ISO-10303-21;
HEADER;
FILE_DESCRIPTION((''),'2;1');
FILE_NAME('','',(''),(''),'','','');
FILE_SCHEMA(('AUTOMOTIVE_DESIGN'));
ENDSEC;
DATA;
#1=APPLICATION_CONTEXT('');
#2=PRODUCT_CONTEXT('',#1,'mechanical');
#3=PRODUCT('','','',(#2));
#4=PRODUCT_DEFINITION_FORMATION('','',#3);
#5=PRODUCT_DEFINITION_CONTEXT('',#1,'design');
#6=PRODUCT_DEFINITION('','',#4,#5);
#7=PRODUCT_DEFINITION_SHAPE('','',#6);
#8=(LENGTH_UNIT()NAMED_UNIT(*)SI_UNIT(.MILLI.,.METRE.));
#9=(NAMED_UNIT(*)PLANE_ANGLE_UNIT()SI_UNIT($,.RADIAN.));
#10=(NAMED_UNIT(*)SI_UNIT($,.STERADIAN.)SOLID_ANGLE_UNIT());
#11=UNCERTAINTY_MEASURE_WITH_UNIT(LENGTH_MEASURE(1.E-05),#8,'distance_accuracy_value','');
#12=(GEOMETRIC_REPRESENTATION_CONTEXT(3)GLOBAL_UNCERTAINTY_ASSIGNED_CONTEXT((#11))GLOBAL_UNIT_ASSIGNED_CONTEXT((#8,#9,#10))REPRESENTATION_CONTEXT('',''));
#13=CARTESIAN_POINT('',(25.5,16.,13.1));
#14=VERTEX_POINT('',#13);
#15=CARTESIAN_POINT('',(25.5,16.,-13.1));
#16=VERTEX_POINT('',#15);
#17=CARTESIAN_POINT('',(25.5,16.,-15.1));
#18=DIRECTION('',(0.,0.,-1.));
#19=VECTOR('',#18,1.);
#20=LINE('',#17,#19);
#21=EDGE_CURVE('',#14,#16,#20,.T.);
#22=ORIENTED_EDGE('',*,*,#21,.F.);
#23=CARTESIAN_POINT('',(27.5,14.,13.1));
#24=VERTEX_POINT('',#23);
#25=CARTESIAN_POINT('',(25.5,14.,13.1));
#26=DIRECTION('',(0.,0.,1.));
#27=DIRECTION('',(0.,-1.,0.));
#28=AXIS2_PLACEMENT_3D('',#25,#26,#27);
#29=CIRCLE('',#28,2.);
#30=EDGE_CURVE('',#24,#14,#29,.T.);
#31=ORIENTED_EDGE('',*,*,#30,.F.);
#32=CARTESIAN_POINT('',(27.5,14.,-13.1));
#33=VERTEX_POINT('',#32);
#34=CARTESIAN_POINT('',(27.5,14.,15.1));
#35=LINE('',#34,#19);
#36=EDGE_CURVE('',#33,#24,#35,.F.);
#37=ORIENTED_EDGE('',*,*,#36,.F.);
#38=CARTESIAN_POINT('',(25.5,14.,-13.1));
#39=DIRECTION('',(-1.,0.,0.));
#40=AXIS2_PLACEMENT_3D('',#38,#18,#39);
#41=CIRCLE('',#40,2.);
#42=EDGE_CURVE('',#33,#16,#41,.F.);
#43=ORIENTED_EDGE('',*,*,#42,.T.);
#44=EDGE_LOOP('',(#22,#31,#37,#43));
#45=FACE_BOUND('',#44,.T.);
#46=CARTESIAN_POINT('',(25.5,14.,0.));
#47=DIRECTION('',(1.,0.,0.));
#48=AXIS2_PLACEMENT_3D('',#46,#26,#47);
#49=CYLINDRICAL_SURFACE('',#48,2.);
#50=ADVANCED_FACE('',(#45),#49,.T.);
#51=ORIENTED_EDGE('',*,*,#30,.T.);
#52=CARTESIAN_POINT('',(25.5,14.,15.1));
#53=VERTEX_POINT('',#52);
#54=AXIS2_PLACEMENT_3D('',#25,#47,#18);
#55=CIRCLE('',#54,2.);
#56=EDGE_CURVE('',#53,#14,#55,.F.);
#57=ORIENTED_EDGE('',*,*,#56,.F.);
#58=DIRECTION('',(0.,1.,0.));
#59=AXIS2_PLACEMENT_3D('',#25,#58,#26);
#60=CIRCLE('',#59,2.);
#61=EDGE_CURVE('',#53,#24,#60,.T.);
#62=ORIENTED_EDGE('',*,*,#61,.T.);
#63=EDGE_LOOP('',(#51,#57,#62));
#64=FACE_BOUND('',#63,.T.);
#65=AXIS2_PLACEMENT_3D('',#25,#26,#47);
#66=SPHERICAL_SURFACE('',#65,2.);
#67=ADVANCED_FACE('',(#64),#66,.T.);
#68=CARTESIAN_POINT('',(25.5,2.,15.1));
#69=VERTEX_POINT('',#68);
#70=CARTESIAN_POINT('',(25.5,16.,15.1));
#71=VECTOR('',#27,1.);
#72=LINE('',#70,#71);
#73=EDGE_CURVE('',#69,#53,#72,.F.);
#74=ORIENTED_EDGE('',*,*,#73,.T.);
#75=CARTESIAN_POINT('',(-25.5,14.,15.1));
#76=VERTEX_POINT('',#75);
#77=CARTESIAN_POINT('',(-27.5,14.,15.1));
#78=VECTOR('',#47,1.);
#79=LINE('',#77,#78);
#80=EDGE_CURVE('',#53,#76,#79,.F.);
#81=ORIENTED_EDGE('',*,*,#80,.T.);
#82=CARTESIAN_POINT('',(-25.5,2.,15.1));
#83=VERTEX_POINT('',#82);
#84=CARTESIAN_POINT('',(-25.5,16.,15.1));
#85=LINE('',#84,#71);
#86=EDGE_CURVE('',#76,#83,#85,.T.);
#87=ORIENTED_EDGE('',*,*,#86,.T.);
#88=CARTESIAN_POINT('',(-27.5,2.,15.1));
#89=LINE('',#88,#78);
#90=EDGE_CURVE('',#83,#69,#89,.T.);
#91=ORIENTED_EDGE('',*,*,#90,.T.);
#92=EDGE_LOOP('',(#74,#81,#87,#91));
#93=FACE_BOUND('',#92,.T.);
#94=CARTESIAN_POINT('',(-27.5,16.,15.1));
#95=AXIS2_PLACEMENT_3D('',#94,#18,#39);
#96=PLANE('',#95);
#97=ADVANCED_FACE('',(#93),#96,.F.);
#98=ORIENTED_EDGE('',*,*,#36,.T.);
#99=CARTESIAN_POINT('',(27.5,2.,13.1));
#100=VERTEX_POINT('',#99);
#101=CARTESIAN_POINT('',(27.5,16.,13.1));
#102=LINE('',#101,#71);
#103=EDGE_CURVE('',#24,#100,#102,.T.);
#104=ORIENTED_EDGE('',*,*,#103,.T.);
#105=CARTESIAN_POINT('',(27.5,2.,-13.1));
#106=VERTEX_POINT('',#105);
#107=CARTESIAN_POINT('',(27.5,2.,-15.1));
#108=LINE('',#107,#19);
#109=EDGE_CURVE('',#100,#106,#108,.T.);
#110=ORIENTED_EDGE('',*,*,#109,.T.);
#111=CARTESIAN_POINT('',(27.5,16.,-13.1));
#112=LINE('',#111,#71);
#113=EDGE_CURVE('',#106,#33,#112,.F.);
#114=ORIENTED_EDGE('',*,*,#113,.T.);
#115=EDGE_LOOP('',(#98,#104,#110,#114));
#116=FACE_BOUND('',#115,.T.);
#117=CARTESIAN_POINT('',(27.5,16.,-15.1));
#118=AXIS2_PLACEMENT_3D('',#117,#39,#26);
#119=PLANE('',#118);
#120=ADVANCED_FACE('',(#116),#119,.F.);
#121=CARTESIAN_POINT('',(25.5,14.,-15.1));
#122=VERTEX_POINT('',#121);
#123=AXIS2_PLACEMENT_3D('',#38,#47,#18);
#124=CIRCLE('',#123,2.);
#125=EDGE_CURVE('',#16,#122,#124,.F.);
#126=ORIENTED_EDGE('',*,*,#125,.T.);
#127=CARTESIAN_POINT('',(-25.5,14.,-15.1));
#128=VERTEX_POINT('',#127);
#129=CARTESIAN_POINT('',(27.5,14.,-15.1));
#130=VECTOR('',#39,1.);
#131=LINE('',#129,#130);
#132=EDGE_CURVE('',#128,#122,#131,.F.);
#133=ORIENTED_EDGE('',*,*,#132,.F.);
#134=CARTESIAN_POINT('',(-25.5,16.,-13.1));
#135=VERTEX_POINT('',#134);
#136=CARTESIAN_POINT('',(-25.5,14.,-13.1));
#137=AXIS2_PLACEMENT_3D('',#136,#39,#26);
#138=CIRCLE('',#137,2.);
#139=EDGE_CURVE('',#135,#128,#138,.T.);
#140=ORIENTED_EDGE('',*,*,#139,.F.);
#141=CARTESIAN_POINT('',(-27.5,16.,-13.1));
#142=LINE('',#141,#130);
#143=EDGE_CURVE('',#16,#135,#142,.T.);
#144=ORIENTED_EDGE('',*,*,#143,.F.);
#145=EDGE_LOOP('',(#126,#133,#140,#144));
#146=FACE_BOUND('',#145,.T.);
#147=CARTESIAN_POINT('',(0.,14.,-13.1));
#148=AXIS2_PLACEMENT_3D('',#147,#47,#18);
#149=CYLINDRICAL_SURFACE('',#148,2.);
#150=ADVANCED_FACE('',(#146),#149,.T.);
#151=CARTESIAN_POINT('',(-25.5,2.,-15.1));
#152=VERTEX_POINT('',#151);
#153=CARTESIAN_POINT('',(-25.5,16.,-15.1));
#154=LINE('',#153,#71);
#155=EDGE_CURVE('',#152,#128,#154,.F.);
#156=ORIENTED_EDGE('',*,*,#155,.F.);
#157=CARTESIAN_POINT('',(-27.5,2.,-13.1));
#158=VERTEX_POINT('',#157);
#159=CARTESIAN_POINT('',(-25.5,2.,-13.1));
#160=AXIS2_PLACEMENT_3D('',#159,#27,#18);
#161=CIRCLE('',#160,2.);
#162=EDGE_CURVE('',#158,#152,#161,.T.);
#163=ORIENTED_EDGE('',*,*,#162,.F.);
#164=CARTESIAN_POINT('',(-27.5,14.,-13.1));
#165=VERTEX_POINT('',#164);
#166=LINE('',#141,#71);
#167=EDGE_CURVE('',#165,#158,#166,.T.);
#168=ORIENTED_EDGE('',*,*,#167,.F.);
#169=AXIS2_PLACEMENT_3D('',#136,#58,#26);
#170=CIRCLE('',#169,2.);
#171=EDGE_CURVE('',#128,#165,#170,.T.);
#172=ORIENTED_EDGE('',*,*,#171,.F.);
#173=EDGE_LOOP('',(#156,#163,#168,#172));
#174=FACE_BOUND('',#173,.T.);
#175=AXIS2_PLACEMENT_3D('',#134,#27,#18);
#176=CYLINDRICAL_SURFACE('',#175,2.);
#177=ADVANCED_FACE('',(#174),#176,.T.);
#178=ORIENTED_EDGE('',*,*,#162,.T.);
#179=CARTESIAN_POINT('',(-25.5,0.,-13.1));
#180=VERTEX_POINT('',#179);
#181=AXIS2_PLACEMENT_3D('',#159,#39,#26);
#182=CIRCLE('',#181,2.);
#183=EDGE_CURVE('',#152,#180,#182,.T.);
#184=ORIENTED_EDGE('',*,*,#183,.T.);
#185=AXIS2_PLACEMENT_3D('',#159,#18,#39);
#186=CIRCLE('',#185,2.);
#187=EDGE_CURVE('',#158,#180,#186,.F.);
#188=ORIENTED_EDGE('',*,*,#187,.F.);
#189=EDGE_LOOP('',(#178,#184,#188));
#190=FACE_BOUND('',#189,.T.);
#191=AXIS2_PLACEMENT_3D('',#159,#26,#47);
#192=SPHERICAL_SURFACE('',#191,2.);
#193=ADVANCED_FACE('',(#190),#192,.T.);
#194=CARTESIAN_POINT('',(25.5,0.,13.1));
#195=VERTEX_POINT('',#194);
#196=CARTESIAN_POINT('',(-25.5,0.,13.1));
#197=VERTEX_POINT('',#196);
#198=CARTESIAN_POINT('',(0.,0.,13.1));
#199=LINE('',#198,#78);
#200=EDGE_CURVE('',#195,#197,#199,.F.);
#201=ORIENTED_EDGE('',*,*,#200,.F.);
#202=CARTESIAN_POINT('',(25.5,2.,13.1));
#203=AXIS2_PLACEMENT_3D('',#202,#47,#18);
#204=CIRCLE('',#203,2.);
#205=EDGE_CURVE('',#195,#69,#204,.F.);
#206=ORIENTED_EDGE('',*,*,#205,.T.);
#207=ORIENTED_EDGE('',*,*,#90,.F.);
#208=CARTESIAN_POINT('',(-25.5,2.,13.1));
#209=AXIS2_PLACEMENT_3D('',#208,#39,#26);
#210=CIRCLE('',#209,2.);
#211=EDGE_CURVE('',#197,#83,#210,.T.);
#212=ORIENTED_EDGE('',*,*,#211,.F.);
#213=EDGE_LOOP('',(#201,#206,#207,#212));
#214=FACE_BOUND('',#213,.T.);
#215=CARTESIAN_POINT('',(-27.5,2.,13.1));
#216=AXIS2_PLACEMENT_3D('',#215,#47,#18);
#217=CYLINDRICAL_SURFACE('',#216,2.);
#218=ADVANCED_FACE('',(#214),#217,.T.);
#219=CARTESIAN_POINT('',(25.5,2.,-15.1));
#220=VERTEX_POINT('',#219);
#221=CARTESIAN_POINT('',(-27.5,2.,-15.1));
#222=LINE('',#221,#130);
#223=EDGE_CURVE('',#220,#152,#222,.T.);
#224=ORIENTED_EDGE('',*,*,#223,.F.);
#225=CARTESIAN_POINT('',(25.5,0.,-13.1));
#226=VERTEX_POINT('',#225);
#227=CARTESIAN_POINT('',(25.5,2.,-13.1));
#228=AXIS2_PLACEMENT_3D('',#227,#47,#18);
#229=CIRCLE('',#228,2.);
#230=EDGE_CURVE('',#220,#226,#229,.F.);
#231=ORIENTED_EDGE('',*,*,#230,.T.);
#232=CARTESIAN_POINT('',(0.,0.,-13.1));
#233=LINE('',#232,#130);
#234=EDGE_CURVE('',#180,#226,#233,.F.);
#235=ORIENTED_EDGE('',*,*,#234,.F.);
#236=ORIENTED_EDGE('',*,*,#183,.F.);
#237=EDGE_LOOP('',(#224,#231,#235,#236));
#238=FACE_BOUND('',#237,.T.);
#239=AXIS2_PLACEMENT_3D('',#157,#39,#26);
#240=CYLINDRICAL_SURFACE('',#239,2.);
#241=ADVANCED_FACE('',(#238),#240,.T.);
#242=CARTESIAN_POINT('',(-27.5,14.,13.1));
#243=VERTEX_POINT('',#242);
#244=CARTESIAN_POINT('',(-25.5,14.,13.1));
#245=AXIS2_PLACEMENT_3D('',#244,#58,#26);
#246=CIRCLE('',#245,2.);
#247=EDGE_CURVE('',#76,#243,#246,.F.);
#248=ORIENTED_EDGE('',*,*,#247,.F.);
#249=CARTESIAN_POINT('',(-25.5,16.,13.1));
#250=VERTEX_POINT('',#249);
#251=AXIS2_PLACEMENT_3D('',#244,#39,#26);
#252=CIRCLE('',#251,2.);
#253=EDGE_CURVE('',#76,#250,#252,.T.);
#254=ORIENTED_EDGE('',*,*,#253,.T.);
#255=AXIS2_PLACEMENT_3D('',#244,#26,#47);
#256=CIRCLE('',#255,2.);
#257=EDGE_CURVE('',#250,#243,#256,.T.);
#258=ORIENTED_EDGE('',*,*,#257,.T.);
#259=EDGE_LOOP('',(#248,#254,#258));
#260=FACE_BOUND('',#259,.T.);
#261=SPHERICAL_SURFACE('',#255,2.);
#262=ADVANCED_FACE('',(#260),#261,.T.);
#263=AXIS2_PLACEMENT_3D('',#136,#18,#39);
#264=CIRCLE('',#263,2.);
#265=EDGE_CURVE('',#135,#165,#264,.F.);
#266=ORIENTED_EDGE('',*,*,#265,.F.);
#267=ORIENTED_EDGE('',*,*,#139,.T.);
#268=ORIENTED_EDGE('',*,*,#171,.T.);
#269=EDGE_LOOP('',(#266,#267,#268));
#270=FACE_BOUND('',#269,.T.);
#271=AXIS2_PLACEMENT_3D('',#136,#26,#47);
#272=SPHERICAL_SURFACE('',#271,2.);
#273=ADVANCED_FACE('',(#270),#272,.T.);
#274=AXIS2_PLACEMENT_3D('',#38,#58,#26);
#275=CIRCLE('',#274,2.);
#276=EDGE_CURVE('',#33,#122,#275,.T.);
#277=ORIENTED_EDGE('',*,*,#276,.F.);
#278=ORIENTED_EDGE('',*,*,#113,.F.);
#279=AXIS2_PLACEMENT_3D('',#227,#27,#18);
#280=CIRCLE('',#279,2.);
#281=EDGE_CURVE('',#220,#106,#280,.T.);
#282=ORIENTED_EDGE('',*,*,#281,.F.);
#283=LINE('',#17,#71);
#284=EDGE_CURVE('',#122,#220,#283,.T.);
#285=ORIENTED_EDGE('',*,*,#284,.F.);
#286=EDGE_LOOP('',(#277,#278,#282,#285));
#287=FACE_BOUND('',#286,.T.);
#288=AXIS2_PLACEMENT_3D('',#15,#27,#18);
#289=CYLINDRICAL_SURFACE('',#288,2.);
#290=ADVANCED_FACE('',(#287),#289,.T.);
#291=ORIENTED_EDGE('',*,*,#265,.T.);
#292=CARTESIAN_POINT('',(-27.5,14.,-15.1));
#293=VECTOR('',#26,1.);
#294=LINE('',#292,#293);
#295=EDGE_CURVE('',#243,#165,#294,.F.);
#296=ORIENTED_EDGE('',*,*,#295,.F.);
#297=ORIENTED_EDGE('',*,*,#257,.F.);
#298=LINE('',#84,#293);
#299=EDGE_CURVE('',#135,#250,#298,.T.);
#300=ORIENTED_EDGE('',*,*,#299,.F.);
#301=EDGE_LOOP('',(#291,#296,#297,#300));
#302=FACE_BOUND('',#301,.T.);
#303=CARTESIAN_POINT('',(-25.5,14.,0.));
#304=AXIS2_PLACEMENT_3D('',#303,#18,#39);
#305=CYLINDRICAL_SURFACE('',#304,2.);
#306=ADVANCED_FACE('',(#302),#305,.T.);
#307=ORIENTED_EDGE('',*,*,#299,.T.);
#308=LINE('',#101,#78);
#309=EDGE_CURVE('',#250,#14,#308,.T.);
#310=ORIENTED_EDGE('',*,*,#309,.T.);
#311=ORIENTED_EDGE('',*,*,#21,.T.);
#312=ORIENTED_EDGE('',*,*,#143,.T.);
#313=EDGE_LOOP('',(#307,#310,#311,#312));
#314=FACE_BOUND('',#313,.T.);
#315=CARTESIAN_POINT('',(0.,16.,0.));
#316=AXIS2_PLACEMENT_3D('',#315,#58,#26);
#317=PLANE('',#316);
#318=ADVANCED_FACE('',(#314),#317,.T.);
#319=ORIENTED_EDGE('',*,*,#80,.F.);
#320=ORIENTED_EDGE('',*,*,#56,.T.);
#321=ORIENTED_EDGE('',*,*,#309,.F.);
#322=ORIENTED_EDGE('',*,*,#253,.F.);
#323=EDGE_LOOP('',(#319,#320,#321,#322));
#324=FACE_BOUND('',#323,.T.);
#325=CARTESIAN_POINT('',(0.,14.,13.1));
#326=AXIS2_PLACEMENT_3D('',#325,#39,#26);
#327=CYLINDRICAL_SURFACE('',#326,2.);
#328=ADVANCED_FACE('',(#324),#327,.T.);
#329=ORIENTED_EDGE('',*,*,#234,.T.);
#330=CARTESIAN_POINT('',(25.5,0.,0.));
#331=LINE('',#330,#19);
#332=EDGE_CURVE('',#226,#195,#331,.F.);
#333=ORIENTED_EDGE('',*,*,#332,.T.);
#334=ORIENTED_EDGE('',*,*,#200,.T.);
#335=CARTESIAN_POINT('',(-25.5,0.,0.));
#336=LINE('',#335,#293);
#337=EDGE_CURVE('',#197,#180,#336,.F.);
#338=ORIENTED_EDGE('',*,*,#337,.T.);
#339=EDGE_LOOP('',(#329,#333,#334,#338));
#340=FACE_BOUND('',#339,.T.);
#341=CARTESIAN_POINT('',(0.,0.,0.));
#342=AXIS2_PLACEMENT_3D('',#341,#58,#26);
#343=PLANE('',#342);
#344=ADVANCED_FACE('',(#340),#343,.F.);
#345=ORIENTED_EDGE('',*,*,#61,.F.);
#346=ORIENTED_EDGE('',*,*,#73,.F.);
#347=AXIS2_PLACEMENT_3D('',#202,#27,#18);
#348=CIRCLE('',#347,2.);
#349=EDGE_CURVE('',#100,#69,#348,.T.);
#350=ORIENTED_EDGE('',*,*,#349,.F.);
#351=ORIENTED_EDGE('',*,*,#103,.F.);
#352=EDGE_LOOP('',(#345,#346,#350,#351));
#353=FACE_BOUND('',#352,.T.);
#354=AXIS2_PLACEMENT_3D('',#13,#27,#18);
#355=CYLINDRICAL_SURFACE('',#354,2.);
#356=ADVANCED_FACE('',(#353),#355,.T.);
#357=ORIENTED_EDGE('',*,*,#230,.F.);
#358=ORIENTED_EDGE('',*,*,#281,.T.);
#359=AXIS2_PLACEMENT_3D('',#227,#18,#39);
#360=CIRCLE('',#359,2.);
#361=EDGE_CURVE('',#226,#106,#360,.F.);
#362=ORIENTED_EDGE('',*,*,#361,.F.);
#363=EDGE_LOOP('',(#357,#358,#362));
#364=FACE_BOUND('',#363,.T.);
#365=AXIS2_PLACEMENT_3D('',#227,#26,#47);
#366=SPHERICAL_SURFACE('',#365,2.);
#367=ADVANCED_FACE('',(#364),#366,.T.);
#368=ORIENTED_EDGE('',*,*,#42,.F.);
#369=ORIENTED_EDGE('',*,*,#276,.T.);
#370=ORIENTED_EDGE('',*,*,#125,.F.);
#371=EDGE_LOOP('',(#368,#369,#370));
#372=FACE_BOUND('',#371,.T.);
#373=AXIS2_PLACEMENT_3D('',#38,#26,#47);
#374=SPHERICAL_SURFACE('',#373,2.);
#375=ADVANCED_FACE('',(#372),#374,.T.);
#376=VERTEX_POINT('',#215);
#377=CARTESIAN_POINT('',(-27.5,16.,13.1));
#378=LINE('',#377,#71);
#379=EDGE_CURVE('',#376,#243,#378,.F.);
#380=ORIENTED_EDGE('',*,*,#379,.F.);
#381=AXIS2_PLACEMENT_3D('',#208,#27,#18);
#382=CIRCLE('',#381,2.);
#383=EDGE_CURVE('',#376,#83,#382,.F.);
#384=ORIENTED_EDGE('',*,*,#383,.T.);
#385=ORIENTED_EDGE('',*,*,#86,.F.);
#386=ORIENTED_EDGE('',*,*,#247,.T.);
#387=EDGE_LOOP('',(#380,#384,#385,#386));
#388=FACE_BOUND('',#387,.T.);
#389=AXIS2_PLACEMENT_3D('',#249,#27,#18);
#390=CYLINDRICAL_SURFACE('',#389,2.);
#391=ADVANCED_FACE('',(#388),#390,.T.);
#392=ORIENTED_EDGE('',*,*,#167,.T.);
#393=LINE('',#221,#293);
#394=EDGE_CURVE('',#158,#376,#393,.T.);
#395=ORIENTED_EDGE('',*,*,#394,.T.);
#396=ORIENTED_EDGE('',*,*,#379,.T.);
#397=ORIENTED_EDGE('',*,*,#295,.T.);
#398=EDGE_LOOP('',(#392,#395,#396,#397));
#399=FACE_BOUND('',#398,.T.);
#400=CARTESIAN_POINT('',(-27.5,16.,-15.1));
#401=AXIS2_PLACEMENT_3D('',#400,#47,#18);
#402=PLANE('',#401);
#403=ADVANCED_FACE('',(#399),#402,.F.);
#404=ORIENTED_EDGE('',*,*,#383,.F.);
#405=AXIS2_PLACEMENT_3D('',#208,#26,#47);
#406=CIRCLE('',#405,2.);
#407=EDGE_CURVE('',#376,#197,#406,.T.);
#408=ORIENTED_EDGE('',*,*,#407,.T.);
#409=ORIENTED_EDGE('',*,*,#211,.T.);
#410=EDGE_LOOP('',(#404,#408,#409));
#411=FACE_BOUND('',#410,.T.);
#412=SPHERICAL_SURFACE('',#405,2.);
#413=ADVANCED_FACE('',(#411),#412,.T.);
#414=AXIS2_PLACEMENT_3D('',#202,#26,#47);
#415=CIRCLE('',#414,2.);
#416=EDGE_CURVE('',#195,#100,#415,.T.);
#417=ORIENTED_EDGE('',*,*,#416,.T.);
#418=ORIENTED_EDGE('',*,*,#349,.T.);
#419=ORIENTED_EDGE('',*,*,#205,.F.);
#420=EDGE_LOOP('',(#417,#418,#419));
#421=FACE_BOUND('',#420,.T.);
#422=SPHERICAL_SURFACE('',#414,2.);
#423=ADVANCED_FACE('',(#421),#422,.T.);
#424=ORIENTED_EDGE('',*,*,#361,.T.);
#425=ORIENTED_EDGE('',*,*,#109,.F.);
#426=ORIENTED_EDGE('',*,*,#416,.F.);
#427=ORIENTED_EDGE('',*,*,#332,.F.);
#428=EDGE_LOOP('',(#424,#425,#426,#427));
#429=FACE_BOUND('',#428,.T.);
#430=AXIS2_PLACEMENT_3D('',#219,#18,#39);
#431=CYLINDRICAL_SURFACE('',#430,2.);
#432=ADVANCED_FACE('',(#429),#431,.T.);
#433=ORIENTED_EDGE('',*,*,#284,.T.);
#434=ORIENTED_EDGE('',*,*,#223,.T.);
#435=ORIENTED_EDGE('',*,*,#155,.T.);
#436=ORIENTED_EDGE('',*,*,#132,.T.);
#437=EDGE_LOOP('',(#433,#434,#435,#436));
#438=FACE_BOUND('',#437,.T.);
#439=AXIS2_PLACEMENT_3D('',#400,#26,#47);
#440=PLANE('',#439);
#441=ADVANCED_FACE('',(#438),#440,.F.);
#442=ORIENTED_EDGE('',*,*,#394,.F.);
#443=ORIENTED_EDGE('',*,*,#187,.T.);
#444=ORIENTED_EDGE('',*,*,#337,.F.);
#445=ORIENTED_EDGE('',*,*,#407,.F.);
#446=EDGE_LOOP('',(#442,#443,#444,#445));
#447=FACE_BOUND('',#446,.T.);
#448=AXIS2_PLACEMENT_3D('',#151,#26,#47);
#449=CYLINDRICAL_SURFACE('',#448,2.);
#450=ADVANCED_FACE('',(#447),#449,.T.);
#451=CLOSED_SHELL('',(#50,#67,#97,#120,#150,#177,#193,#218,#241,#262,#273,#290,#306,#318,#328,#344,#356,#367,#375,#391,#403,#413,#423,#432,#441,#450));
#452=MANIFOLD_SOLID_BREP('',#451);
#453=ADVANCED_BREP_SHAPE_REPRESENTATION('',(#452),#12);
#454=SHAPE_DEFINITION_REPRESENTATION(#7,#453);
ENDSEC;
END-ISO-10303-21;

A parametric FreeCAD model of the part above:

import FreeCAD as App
import Part
import Sketcher

V = App.Vector

doc = App.newDocument("Part")
params = doc.addObject("Spreadsheet::Sheet", "Params")
for row, (alias, value) in enumerate([
    ("sketch1_width", "55 mm"),
    ("sketch1_height", "30.2 mm"),
    ("pad1_length", "16 mm"),
    ("fillet_radius", "2 mm"),
], start=1):
    params.set(f"A{row}", alias)
    params.set(f"B{row}", "=" + value)
    params.setAlias(f"B{row}", alias)

body = doc.addObject("PartDesign::Body", "Body")

# Sketch on XZ plane
sketch1 = doc.addObject("Sketcher::SketchObject", "Sketch")
body.addObject(sketch1)
sketch1.AttachmentSupport = (doc.XZ_Plane, [""])
sketch1.MapMode = "FlatFace"
sketch1.addGeometry([
    Part.LineSegment(V(-27.5, -15.1, 0), V(-27.5, 15.1, 0)),
    Part.LineSegment(V(-27.5, 15.1, 0), V(27.5, 15.1, 0)),
    Part.LineSegment(V(27.5, 15.1, 0), V(27.5, -15.1, 0)),
    Part.LineSegment(V(27.5, -15.1, 0), V(-27.5, -15.1, 0)),
], False)
sketch1.addConstraint([
    Sketcher.Constraint("Coincident", 0, 2, 1, 1),
    Sketcher.Constraint("Coincident", 1, 2, 2, 1),
    Sketcher.Constraint("Coincident", 2, 2, 3, 1),
    Sketcher.Constraint("Coincident", 3, 2, 0, 1),
    Sketcher.Constraint("Vertical", 0),
    Sketcher.Constraint("Horizontal", 1),
    Sketcher.Constraint("Vertical", 2),
    Sketcher.Constraint("Horizontal", 3),
    Sketcher.Constraint("Symmetric", 0, 2, 2, 2, -1, 1),
    Sketcher.Constraint("DistanceX", 1, 1, 1, 2, 55.0),
    Sketcher.Constraint("DistanceY", 0, 1, 0, 2, 30.2),
])
sketch1.setExpression("Constraints[9]", "Params.sketch1_width")
sketch1.setExpression("Constraints[10]", "Params.sketch1_height")
pad1 = doc.addObject("PartDesign::Pad", "Pad")
body.addObject(pad1)
pad1.Profile = sketch1
pad1.setExpression("Length", "Params.pad1_length")
pad1.Reversed = True
doc.recompute()

fillet = doc.addObject("PartDesign::Fillet", "Fillet")
body.addObject(fillet)
fillet.Base = (pad1, ["Edge1"])
fillet.UseAllEdges = True
fillet.setExpression("Radius", "Params.fillet_radius")

doc.recompute()
